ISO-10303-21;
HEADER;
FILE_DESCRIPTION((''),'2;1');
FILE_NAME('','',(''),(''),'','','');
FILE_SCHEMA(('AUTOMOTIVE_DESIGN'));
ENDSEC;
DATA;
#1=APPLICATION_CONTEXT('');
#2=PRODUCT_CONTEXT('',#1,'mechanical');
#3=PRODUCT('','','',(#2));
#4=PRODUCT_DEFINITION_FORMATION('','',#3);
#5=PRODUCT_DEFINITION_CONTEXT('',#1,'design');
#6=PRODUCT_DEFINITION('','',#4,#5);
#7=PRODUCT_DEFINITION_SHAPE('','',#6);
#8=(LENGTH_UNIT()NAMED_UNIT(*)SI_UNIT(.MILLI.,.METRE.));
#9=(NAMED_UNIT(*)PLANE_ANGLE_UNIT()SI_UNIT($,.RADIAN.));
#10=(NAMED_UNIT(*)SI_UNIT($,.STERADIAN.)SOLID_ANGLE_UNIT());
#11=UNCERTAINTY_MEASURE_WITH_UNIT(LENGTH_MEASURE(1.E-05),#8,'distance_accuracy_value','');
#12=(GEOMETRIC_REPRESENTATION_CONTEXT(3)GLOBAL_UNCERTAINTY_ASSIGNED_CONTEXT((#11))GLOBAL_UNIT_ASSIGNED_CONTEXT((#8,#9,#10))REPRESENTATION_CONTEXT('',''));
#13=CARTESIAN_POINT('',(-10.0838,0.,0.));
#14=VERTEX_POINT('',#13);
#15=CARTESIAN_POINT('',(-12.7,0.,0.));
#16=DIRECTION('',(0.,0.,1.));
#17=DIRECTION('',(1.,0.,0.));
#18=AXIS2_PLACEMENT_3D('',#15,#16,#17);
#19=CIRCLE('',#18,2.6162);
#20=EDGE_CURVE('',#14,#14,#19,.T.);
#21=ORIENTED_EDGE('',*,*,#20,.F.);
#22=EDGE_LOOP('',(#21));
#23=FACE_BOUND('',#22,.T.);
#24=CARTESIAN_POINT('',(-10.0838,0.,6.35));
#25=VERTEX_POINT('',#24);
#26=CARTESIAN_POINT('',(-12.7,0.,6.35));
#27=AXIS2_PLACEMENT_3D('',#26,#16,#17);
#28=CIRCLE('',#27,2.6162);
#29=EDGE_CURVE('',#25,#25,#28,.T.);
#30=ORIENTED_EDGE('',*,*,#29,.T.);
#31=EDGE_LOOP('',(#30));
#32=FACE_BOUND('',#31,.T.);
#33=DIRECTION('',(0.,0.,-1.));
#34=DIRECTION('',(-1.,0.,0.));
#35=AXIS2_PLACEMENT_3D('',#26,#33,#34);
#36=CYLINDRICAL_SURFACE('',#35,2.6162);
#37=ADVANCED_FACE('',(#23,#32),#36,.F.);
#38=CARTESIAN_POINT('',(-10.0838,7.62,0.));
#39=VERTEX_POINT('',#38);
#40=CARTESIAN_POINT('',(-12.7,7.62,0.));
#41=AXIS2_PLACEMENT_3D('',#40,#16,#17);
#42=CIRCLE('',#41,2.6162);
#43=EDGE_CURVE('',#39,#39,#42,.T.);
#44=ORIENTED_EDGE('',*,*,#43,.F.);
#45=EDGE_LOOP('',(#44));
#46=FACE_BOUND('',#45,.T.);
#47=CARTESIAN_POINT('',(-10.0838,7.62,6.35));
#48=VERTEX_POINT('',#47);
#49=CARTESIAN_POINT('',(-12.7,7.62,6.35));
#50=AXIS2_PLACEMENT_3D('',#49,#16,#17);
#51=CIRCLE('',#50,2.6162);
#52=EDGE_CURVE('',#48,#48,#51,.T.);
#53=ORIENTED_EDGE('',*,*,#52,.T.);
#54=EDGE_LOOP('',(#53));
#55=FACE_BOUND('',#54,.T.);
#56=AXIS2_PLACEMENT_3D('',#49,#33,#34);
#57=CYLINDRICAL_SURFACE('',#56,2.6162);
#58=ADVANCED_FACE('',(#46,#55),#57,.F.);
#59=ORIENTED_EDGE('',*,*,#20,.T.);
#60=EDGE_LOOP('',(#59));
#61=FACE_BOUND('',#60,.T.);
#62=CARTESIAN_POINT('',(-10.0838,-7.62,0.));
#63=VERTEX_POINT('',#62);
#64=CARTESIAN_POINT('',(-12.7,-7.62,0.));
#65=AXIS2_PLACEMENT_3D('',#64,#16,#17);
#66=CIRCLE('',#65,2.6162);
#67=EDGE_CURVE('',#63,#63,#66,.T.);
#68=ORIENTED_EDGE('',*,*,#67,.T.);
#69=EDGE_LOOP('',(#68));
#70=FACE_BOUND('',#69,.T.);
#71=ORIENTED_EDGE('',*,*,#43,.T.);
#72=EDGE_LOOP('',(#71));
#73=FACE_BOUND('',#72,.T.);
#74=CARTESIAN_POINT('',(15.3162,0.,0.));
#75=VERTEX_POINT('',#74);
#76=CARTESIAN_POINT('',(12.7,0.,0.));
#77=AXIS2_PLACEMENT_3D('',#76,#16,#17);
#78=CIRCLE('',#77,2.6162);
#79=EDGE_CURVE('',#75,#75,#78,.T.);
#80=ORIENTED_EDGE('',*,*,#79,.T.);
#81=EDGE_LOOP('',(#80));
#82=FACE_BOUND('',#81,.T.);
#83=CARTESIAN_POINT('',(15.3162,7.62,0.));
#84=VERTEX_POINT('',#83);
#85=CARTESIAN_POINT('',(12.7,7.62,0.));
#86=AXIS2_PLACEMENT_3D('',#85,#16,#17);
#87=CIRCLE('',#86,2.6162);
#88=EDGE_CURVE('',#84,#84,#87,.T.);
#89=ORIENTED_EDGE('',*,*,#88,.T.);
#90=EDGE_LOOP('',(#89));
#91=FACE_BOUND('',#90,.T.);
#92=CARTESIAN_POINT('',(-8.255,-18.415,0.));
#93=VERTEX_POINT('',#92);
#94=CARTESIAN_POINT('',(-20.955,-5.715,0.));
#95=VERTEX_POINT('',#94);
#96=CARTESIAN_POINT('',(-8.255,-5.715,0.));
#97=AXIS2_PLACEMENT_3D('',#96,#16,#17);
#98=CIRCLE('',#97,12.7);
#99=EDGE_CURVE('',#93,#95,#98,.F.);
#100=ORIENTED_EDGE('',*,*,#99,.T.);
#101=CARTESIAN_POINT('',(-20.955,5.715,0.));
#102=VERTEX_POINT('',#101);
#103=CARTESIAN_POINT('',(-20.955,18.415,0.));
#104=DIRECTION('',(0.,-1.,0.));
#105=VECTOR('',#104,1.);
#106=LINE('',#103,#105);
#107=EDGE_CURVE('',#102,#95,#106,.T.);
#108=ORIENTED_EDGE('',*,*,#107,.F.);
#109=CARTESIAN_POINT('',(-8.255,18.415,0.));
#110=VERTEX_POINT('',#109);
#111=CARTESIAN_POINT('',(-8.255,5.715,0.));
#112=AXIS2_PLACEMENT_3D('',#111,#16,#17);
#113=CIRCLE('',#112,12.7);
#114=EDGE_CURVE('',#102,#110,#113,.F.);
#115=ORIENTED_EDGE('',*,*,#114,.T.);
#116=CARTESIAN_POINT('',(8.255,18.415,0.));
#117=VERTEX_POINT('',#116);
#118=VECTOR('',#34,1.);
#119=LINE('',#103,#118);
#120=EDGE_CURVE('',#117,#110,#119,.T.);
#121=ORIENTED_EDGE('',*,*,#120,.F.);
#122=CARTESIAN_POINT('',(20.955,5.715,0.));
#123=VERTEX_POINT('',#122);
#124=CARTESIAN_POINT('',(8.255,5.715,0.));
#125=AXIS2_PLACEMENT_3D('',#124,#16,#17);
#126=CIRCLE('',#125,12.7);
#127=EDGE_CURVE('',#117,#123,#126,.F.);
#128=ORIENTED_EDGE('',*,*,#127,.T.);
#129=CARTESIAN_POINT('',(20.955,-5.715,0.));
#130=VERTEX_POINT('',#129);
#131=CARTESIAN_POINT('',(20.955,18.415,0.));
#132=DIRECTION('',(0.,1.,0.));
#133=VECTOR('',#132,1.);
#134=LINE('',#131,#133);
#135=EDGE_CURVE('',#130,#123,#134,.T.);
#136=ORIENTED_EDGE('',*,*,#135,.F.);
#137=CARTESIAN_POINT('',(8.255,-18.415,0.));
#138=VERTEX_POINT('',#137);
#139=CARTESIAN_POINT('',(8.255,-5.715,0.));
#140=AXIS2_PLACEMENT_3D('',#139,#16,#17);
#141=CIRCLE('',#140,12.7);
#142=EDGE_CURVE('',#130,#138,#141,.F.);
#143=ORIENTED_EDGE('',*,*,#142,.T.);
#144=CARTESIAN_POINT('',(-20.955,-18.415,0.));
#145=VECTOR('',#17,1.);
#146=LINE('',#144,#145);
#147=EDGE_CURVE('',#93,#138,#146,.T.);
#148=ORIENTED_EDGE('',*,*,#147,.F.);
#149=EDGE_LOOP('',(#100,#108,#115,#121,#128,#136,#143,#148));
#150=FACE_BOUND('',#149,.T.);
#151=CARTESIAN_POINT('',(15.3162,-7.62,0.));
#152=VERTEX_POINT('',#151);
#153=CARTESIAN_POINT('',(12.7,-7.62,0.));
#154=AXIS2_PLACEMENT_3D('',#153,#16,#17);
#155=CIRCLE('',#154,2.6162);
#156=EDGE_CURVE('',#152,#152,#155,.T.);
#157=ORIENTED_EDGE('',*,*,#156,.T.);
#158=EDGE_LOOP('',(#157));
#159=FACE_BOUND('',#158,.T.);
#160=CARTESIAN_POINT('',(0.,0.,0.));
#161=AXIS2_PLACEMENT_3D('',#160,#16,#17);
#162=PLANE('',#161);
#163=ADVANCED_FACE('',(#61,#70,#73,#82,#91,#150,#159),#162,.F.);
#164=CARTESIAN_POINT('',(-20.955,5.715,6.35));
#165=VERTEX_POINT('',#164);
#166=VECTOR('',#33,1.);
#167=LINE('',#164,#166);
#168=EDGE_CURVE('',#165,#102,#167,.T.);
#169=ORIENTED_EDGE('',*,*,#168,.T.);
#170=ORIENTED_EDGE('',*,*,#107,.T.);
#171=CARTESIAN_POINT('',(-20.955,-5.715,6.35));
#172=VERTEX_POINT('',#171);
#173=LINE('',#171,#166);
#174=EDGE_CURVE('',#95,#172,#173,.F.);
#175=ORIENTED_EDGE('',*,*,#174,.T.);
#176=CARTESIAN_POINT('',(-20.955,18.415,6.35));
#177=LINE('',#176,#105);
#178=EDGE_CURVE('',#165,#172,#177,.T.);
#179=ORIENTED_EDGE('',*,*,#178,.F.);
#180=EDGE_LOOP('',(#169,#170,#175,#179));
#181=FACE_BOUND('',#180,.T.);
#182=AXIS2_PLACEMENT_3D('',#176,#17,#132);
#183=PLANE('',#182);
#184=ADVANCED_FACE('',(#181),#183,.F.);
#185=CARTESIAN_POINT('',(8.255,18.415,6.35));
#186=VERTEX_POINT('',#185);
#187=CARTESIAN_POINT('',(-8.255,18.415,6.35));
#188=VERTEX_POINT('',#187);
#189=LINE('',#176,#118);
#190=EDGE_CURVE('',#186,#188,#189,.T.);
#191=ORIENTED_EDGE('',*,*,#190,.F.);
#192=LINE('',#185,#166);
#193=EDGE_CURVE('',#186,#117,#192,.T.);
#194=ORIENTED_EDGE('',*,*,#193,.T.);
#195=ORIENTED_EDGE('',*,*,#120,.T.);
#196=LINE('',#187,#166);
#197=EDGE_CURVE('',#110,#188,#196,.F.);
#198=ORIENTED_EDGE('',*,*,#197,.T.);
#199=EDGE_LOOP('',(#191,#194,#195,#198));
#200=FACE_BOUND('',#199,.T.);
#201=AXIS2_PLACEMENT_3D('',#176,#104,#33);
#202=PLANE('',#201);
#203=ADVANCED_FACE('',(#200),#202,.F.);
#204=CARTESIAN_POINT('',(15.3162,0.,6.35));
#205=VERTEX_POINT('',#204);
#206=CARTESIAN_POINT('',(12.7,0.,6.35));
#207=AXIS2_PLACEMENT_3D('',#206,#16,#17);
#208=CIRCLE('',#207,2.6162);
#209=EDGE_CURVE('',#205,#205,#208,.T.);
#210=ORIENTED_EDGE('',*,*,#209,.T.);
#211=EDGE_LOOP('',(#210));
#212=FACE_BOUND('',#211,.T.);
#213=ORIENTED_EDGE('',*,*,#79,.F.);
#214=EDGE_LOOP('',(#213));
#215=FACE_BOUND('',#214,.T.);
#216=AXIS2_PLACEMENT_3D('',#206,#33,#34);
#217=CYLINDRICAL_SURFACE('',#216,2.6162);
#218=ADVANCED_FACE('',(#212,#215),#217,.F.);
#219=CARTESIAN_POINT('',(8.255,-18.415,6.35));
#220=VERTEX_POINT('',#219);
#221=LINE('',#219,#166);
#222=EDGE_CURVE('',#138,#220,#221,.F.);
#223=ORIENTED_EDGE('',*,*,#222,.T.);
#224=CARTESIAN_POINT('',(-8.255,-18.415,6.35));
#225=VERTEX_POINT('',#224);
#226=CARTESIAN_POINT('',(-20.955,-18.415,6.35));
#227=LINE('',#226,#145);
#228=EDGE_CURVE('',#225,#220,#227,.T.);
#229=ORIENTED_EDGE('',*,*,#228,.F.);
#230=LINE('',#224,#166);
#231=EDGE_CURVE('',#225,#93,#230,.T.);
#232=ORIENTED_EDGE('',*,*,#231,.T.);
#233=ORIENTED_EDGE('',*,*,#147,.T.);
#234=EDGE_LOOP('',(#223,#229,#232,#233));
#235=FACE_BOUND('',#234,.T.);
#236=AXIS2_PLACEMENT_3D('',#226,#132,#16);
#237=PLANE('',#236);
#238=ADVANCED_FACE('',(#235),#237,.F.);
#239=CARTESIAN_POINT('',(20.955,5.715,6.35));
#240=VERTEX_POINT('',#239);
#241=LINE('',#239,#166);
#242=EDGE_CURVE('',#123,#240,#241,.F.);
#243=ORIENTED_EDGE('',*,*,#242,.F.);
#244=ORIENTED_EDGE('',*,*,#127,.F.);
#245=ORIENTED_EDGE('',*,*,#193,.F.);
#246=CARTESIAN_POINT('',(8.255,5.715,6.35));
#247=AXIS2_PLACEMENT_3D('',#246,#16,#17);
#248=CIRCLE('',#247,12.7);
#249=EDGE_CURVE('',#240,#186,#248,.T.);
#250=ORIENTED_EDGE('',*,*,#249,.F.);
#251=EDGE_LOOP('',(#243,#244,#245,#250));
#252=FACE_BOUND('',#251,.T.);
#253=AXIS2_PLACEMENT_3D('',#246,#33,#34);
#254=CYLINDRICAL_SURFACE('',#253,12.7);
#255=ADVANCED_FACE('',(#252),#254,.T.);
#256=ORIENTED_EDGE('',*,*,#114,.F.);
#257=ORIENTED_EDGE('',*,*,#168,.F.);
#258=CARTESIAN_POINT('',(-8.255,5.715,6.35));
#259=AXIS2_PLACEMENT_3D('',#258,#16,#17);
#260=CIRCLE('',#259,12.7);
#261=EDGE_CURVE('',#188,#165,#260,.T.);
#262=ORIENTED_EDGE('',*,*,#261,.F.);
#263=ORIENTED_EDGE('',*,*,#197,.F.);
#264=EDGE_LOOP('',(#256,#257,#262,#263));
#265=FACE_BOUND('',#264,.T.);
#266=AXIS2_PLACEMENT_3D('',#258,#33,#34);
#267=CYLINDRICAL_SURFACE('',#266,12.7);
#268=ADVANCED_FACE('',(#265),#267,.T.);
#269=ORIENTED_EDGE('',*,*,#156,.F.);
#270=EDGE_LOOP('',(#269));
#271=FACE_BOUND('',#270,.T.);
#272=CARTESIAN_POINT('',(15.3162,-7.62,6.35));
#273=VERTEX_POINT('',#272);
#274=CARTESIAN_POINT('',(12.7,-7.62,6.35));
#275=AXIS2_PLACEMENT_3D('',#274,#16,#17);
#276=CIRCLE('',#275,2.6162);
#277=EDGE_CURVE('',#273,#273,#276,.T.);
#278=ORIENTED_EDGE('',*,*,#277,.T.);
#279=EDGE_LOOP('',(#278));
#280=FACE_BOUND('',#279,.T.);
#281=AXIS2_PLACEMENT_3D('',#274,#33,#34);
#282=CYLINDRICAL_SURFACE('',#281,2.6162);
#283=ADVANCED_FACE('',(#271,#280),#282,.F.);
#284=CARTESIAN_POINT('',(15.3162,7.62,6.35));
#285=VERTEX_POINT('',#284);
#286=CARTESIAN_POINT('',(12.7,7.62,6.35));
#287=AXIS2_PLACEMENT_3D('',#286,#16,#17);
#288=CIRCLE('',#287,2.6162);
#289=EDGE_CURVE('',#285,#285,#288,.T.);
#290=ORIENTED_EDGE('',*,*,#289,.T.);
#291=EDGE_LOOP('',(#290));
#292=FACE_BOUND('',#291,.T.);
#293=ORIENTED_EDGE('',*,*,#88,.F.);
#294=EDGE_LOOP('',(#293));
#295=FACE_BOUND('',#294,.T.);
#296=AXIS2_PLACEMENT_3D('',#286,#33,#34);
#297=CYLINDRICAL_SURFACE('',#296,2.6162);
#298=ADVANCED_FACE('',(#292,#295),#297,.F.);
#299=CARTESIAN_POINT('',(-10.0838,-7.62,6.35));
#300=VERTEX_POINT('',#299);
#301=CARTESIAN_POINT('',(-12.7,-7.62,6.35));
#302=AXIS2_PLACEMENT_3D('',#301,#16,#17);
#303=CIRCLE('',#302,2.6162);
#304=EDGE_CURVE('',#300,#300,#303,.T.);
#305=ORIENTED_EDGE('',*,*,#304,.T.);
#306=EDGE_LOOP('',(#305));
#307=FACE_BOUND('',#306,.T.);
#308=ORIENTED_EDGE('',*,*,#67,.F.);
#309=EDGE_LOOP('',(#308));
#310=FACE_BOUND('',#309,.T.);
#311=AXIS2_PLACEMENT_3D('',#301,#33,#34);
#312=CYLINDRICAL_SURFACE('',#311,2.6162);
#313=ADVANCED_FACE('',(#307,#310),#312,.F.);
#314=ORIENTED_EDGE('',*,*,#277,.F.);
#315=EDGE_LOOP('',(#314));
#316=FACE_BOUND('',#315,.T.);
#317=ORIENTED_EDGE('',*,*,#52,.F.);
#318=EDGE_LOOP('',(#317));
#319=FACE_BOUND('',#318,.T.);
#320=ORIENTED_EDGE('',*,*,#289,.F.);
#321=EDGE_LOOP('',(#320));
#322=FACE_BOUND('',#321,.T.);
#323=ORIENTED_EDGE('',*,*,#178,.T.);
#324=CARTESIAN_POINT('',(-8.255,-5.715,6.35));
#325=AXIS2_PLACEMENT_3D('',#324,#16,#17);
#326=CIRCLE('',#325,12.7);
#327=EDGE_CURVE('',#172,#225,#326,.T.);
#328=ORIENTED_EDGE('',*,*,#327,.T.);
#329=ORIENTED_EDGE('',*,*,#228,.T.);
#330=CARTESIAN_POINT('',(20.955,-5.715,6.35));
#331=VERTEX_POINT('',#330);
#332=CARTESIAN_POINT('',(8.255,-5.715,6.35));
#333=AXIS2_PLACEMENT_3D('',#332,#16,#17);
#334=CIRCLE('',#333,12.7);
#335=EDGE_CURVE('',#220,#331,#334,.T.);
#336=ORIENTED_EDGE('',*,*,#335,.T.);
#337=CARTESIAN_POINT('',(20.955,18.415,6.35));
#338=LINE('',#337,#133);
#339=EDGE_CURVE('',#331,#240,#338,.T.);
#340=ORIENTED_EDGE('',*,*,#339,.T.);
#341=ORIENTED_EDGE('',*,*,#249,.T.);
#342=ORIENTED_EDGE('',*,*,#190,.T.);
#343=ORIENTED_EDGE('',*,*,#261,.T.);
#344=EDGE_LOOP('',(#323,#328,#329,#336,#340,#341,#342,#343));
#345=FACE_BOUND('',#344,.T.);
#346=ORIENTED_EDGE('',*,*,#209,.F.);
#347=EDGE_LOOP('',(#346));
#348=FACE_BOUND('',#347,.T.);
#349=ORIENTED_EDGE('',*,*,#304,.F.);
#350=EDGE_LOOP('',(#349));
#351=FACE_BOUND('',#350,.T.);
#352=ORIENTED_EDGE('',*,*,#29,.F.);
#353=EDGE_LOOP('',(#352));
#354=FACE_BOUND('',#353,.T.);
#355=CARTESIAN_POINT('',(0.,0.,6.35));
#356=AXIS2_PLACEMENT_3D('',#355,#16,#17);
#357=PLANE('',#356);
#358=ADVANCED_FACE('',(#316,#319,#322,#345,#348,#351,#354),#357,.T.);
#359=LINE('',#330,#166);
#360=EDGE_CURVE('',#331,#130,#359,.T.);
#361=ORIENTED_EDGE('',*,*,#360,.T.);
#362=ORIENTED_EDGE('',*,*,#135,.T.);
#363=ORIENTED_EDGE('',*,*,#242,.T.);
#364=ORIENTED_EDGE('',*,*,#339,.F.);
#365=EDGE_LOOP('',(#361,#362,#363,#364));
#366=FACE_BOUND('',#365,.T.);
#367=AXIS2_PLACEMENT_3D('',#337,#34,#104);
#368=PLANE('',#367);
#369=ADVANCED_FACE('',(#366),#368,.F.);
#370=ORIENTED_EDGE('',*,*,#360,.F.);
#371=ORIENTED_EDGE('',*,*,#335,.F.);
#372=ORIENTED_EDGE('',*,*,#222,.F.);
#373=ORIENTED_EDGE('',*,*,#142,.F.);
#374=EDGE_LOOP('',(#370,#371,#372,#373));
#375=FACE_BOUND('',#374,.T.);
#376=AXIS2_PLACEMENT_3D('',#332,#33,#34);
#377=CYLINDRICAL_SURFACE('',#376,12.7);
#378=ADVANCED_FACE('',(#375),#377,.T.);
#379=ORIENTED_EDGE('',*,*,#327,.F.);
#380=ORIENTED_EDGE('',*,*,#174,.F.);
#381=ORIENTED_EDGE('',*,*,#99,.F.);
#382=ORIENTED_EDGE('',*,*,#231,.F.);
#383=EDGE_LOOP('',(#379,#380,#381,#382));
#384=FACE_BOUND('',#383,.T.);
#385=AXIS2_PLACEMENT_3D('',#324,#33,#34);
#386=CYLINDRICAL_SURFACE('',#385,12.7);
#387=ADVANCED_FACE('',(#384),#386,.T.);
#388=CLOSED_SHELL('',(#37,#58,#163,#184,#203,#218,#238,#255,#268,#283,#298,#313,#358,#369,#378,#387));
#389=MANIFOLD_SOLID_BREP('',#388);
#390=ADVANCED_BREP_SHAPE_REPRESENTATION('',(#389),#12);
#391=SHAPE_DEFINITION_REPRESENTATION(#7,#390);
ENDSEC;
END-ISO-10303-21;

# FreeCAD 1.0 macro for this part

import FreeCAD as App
import Part
import Sketcher
from FreeCAD import Vector
Q = App.Units.Quantity


def edges_at(feature, points):
    """Names of the edges that pass closest to the given points."""
    edges = feature.Shape.Edges
    near = lambda p: min(range(len(edges)), key=lambda i: edges[i].distToShape(Part.Vertex(*p))[0])
    return sorted({f"Edge{near(p) + 1}" for p in points})


def add_polygon(sketch, points):
    """Adds a closed chain of lines whose ends are joined by coincident constraints."""
    first, n = sketch.GeometryCount, len(points)
    for a, b in zip(points, points[1:] + points[:1]):
        sketch.addGeometry(Part.LineSegment(App.Vector(*a, 0), App.Vector(*b, 0)), False)
    for i in range(n):
        sketch.addConstraint(Sketcher.Constraint("Coincident", first + i, 2, first + (i + 1) % n, 1))

doc = App.newDocument("Part")
params = doc.addObject("Spreadsheet::Sheet", "Params")
for row, (alias, value) in enumerate([
    ("sketch1_diameter", "0.206 in"),
    ("sketch1_width", "1.65 in"),
    ("sketch1_height", "1.45 in"),
    ("pad1_length", "0.25 in"),
    ("fillet_radius", "0.5 in"),
], start=1):
    params.set(f"A{row}", alias)
    params.set(f"B{row}", "=" + value)
    params.setAlias(f"B{row}", alias)

body = doc.addObject("PartDesign::Body", "Body")

# Sketch on XY plane
sketch1 = body.newObject("Sketcher::SketchObject", "Sketch")
sketch1.AttachmentSupport = (doc.getObject("XY_Plane"), [""])
sketch1.MapMode = "FlatFace"
add_polygon(sketch1, [(-21, 18.4), (-21, -18.4), (21, -18.4), (21, 18.4)])  # lines 0-3
sketch1.addGeometry(Part.Circle(Vector(-12.7, -7.6, 0), Vector(0, 0, 1), 2.6), False)  # 4
sketch1.addGeometry(Part.Circle(Vector(12.7, -7.6, 0), Vector(0, 0, 1), 2.6), False)  # 5
sketch1.addGeometry(Part.Circle(Vector(-12.7, 0, 0), Vector(0, 0, 1), 2.6), False)  # 6
sketch1.addGeometry(Part.Circle(Vector(-12.7, 7.6, 0), Vector(0, 0, 1), 2.6), False)  # 7
sketch1.addGeometry(Part.Circle(Vector(12.7, 0, 0), Vector(0, 0, 1), 2.6), False)  # 8
sketch1.addGeometry(Part.Circle(Vector(12.7, 7.6, 0), Vector(0, 0, 1), 2.6), False)  # 9
sketch1.addConstraint([
    Sketcher.Constraint("Vertical", 0),
    Sketcher.Constraint("Horizontal", 1),
    Sketcher.Constraint("Vertical", 2),
    Sketcher.Constraint("Horizontal", 3),
    Sketcher.Constraint("Equal", 4, 5),
    Sketcher.Constraint("Equal", 5, 6),
    Sketcher.Constraint("Equal", 6, 7),
    Sketcher.Constraint("Equal", 7, 8),
    Sketcher.Constraint("Equal", 8, 9),
    Sketcher.Constraint("Symmetric", 5, 3, 7, 3, -1, 1),
    Sketcher.Constraint("Symmetric", 6, 3, 8, 3, -1, 1),
    Sketcher.Constraint("Symmetric", 4, 3, 9, 3, -1, 1),
    Sketcher.Constraint("Symmetric", 0, 2, 2, 2, -1, 1),
    Sketcher.Constraint("Symmetric", 4, 3, 5, 3, -2),
    Sketcher.Constraint("PointOnObject", 6, 3, -1),
    Sketcher.Constraint("Vertical", 4, 3, 6, 3),
    Sketcher.Constraint("Diameter", 4, Q("0.206 in")),
    Sketcher.Constraint("DistanceX", 4, 3, 5, 3, Q("1 in")),
    Sketcher.Constraint("DistanceX", 1, 1, 1, 2, Q("1.65 in")),
    Sketcher.Constraint("DistanceY", 0, 2, 0, 1, Q("1.45 in")),
    Sketcher.Constraint("DistanceY", 4, 3, -1, 1, Q("0.3 in")),
])
sketch1.setExpression("Constraints[20]", "Params.sketch1_diameter")
sketch1.setExpression("Constraints[22]", "Params.sketch1_width")
sketch1.setExpression("Constraints[23]", "Params.sketch1_height")
pad1 = body.newObject("PartDesign::Pad", "Pad")
pad1.Profile = sketch1
pad1.setExpression("Length", "Params.pad1_length")
doc.recompute()

fillet = body.newObject("PartDesign::Fillet", "Fillet")
fillet.Base = (pad1, edges_at(pad1, [
    (20.955, -18.415, 3.175),
    (-20.955, -18.415, 3.175),
    (-20.955, 18.415, 3.175),
    (20.955, 18.415, 3.175),
]))
fillet.setExpression("Radius", "Params.fillet_radius")

doc.recompute()
